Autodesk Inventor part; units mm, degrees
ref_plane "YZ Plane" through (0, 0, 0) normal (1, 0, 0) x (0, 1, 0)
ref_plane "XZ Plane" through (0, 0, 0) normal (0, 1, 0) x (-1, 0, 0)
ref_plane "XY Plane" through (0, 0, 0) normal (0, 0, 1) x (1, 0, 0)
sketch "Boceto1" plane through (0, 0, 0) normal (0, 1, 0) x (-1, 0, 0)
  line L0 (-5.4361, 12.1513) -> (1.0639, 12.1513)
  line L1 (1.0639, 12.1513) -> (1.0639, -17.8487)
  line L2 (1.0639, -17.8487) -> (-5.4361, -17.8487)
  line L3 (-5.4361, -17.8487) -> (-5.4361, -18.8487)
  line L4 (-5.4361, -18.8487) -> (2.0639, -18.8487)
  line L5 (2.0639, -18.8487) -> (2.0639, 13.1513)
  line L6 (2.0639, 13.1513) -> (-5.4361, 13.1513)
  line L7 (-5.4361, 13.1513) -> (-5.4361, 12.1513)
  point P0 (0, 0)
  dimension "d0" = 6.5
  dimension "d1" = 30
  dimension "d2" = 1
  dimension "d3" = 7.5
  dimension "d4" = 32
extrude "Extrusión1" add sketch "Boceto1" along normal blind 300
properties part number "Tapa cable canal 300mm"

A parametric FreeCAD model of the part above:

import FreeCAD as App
import Part
import Sketcher
from FreeCAD import Vector

doc = App.newDocument("Part")
body = doc.addObject("PartDesign::Body", "Body")

sketch1 = doc.addObject("Sketcher::SketchObject", "Sketch")
body.addObject(sketch1)
sketch1.AttachmentSupport = (doc.XZ_Plane, [""])
sketch1.MapMode = "FlatFace"
sketch1.addGeometry(Part.LineSegment(Vector(5.4361, 13.1513, 0), Vector(5.4361, 12.1513, 0)), False)
sketch1.addGeometry(Part.LineSegment(Vector(5.4361, 12.1513, 0), Vector(-1.0639, 12.1513, 0)), False)
sketch1.addGeometry(Part.LineSegment(Vector(-1.0639, 12.1513, 0), Vector(-1.0639, -17.8487, 0)), False)
sketch1.addGeometry(Part.LineSegment(Vector(-1.0639, -17.8487, 0), Vector(5.4361, -17.8487, 0)), False)
sketch1.addGeometry(Part.LineSegment(Vector(5.4361, -17.8487, 0), Vector(5.4361, -18.8487, 0)), False)
sketch1.addGeometry(Part.LineSegment(Vector(5.4361, -18.8487, 0), Vector(-2.0639, -18.8487, 0)), False)
sketch1.addGeometry(Part.LineSegment(Vector(-2.0639, -18.8487, 0), Vector(-2.0639, 13.1513, 0)), False)
sketch1.addGeometry(Part.LineSegment(Vector(-2.0639, 13.1513, 0), Vector(5.4361, 13.1513, 0)), False)
sketch1.addConstraint(Sketcher.Constraint("Coincident", 0, 2, 1, 1))
sketch1.addConstraint(Sketcher.Constraint("Coincident", 1, 2, 2, 1))
sketch1.addConstraint(Sketcher.Constraint("Coincident", 2, 2, 3, 1))
sketch1.addConstraint(Sketcher.Constraint("Coincident", 3, 2, 4, 1))
sketch1.addConstraint(Sketcher.Constraint("Coincident", 4, 2, 5, 1))
sketch1.addConstraint(Sketcher.Constraint("Coincident", 5, 2, 6, 1))
sketch1.addConstraint(Sketcher.Constraint("Coincident", 6, 2, 7, 1))
sketch1.addConstraint(Sketcher.Constraint("Coincident", 7, 2, 0, 1))
sketch1.addConstraint(Sketcher.Constraint("Vertical", 0))
sketch1.addConstraint(Sketcher.Constraint("Horizontal", 1))
sketch1.addConstraint(Sketcher.Constraint("Vertical", 2))
sketch1.addConstraint(Sketcher.Constraint("Horizontal", 3))
sketch1.addConstraint(Sketcher.Constraint("Vertical", 4))
sketch1.addConstraint(Sketcher.Constraint("Horizontal", 5))
sketch1.addConstraint(Sketcher.Constraint("Vertical", 6))
sketch1.addConstraint(Sketcher.Constraint("Horizontal", 7))
sketch1.addConstraint(Sketcher.Constraint("Vertical", 0, 2, 3, 2))
sketch1.addConstraint(Sketcher.Constraint("Equal", 0, 4))
sketch1.addConstraint(Sketcher.Constraint("DistanceY", 0, 2, 0, 1, 1.0))
sketch1.addConstraint(Sketcher.Constraint("DistanceY", 2, 2, 2, 1, 30.0))
sketch1.addConstraint(Sketcher.Constraint("DistanceX", 1, 2, 1, 1, 6.5))
sketch1.addConstraint(Sketcher.Constraint("DistanceX", 5, 2, 5, 1, 7.5))
sketch1.addConstraint(Sketcher.Constraint("DistanceX", -1, 1, 0, 2, 5.436))
sketch1.addConstraint(Sketcher.Constraint("DistanceY", -1, 1, 0, 2, 12.1513))
pad1 = doc.addObject("PartDesign::Pad", "Pad")
body.addObject(pad1)
pad1.Profile = sketch1
pad1.Length = 300
pad1.Reversed = True

doc.recompute()
